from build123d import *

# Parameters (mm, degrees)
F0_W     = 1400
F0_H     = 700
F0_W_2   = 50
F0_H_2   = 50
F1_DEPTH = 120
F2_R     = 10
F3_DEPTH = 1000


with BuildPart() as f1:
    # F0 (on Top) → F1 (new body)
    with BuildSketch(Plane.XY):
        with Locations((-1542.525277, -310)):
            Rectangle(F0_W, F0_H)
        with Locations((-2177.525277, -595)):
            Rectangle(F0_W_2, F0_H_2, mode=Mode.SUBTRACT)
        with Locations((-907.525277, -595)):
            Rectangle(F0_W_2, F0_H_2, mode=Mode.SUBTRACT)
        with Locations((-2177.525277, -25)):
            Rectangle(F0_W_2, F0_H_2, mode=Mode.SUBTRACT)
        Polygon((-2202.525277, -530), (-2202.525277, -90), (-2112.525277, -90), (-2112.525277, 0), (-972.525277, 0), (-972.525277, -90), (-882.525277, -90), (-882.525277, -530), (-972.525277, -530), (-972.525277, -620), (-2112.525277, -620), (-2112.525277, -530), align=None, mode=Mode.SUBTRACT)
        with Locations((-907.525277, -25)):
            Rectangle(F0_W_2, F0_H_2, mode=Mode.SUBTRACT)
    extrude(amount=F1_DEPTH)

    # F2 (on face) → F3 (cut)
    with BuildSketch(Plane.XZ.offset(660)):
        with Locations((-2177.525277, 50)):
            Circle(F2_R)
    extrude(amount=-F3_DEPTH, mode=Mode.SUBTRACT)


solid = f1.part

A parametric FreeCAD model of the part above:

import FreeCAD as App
import Part
import Sketcher
from FreeCAD import Vector
Q = App.Units.Quantity

doc = App.newDocument("Part")
body = doc.addObject("PartDesign::Body", "Body")

# Sketch on XY plane
sketch1 = doc.addObject("Sketcher::SketchObject", "Sketch")
body.addObject(sketch1)
sketch1.AttachmentSupport = (doc.XY_Plane, [""])
sketch1.MapMode = "FlatFace"
sketch1.addGeometry(Part.LineSegment(Vector(-2243, 40, 0), Vector(-2243, -660, 0)), False)
sketch1.addGeometry(Part.LineSegment(Vector(-2243, -660, 0), Vector(-843, -660, 0)), False)
sketch1.addGeometry(Part.LineSegment(Vector(-843, -660, 0), Vector(-843, 40, 0)), False)
sketch1.addGeometry(Part.LineSegment(Vector(-843, 40, 0), Vector(-2243, 40, 0)), False)
sketch1.addGeometry(Part.LineSegment(Vector(-2153, -620, 0), Vector(-2203, -620, 0)), False)
sketch1.addGeometry(Part.LineSegment(Vector(-2203, -620, 0), Vector(-2203, -570, 0)), False)
sketch1.addGeometry(Part.LineSegment(Vector(-2203, -570, 0), Vector(-2153, -570, 0)), False)
sketch1.addGeometry(Part.LineSegment(Vector(-2153, -570, 0), Vector(-2153, -620, 0)), False)
sketch1.addGeometry(Part.LineSegment(Vector(-883, -620, 0), Vector(-933, -620, 0)), False)
sketch1.addGeometry(Part.LineSegment(Vector(-933, -620, 0), Vector(-933, -570, 0)), False)
sketch1.addGeometry(Part.LineSegment(Vector(-933, -570, 0), Vector(-883, -570, 0)), False)
sketch1.addGeometry(Part.LineSegment(Vector(-883, -570, 0), Vector(-883, -620, 0)), False)
sketch1.addGeometry(Part.LineSegment(Vector(-2153, -50, 0), Vector(-2203, -50, 0)), False)
sketch1.addGeometry(Part.LineSegment(Vector(-2203, -50, 0), Vector(-2203, 0, 0)), False)
sketch1.addGeometry(Part.LineSegment(Vector(-2203, 0, 0), Vector(-2153, 0, 0)), False)
sketch1.addGeometry(Part.LineSegment(Vector(-2153, 0, 0), Vector(-2153, -50, 0)), False)
sketch1.addGeometry(Part.LineSegment(Vector(-2113, -530, 0), Vector(-2203, -530, 0)), False)
sketch1.addGeometry(Part.LineSegment(Vector(-2203, -530, 0), Vector(-2203, -90, 0)), False)
sketch1.addGeometry(Part.LineSegment(Vector(-2203, -90, 0), Vector(-2113, -90, 0)), False)
sketch1.addGeometry(Part.LineSegment(Vector(-2113, -90, 0), Vector(-2113, 0, 0)), False)
sketch1.addGeometry(Part.LineSegment(Vector(-2113, 0, 0), Vector(-973, 0, 0)), False)
sketch1.addGeometry(Part.LineSegment(Vector(-973, 0, 0), Vector(-973, -90, 0)), False)
sketch1.addGeometry(Part.LineSegment(Vector(-973, -90, 0), Vector(-883, -90, 0)), False)
sketch1.addGeometry(Part.LineSegment(Vector(-883, -90, 0), Vector(-883, -530, 0)), False)
sketch1.addGeometry(Part.LineSegment(Vector(-883, -530, 0), Vector(-973, -530, 0)), False)
sketch1.addGeometry(Part.LineSegment(Vector(-973, -530, 0), Vector(-973, -620, 0)), False)
sketch1.addGeometry(Part.LineSegment(Vector(-973, -620, 0), Vector(-2113, -620, 0)), False)
sketch1.addGeometry(Part.LineSegment(Vector(-2113, -620, 0), Vector(-2113, -530, 0)), False)
sketch1.addGeometry(Part.LineSegment(Vector(-883, -50, 0), Vector(-933, -50, 0)), False)
sketch1.addGeometry(Part.LineSegment(Vector(-933, -50, 0), Vector(-933, 0, 0)), False)
sketch1.addGeometry(Part.LineSegment(Vector(-933, 0, 0), Vector(-883, 0, 0)), False)
sketch1.addGeometry(Part.LineSegment(Vector(-883, 0, 0), Vector(-883, -50, 0)), False)
sketch1.addConstraint(Sketcher.Constraint("Coincident", 0, 2, 1, 1))
sketch1.addConstraint(Sketcher.Constraint("Coincident", 1, 2, 2, 1))
sketch1.addConstraint(Sketcher.Constraint("Coincident", 2, 2, 3, 1))
sketch1.addConstraint(Sketcher.Constraint("Coincident", 3, 2, 0, 1))
sketch1.addConstraint(Sketcher.Constraint("Coincident", 4, 2, 5, 1))
sketch1.addConstraint(Sketcher.Constraint("Coincident", 5, 2, 6, 1))
sketch1.addConstraint(Sketcher.Constraint("Coincident", 6, 2, 7, 1))
sketch1.addConstraint(Sketcher.Constraint("Coincident", 7, 2, 4, 1))
sketch1.addConstraint(Sketcher.Constraint("Coincident", 8, 2, 9, 1))
sketch1.addConstraint(Sketcher.Constraint("Coincident", 9, 2, 10, 1))
sketch1.addConstraint(Sketcher.Constraint("Coincident", 10, 2, 11, 1))
sketch1.addConstraint(Sketcher.Constraint("Coincident", 11, 2, 8, 1))
sketch1.addConstraint(Sketcher.Constraint("Coincident", 12, 2, 13, 1))
sketch1.addConstraint(Sketcher.Constraint("Coincident", 13, 2, 14, 1))
sketch1.addConstraint(Sketcher.Constraint("Coincident", 14, 2, 15, 1))
sketch1.addConstraint(Sketcher.Constraint("Coincident", 15, 2, 12, 1))
sketch1.addConstraint(Sketcher.Constraint("Coincident", 16, 2, 17, 1))
sketch1.addConstraint(Sketcher.Constraint("Coincident", 17, 2, 18, 1))
sketch1.addConstraint(Sketcher.Constraint("Coincident", 18, 2, 19, 1))
sketch1.addConstraint(Sketcher.Constraint("Coincident", 19, 2, 20, 1))
sketch1.addConstraint(Sketcher.Constraint("Coincident", 20, 2, 21, 1))
sketch1.addConstraint(Sketcher.Constraint("Coincident", 21, 2, 22, 1))
sketch1.addConstraint(Sketcher.Constraint("Coincident", 22, 2, 23, 1))
sketch1.addConstraint(Sketcher.Constraint("Coincident", 23, 2, 24, 1))
sketch1.addConstraint(Sketcher.Constraint("Coincident", 24, 2, 25, 1))
sketch1.addConstraint(Sketcher.Constraint("Coincident", 25, 2, 26, 1))
sketch1.addConstraint(Sketcher.Constraint("Coincident", 26, 2, 27, 1))
sketch1.addConstraint(Sketcher.Constraint("Coincident", 27, 2, 16, 1))
sketch1.addConstraint(Sketcher.Constraint("Coincident", 28, 2, 29, 1))
sketch1.addConstraint(Sketcher.Constraint("Coincident", 29, 2, 30, 1))
sketch1.addConstraint(Sketcher.Constraint("Coincident", 30, 2, 31, 1))
sketch1.addConstraint(Sketcher.Constraint("Coincident", 31, 2, 28, 1))
sketch1.addConstraint(Sketcher.Constraint("Vertical", 0))
sketch1.addConstraint(Sketcher.Constraint("Horizontal", 1))
sketch1.addConstraint(Sketcher.Constraint("Vertical", 2))
sketch1.addConstraint(Sketcher.Constraint("Horizontal", 3))
sketch1.addConstraint(Sketcher.Constraint("Horizontal", 4))
sketch1.addConstraint(Sketcher.Constraint("Vertical", 5))
sketch1.addConstraint(Sketcher.Constraint("Horizontal", 6))
sketch1.addConstraint(Sketcher.Constraint("Vertical", 7))
sketch1.addConstraint(Sketcher.Constraint("Horizontal", 8))
sketch1.addConstraint(Sketcher.Constraint("Vertical", 9))
sketch1.addConstraint(Sketcher.Constraint("Horizontal", 10))
sketch1.addConstraint(Sketcher.Constraint("Vertical", 11))
sketch1.addConstraint(Sketcher.Constraint("Horizontal", 12))
sketch1.addConstraint(Sketcher.Constraint("Vertical", 13))
sketch1.addConstraint(Sketcher.Constraint("Horizontal", 14))
sketch1.addConstraint(Sketcher.Constraint("Vertical", 15))
sketch1.addConstraint(Sketcher.Constraint("Horizontal", 16))
sketch1.addConstraint(Sketcher.Constraint("Vertical", 17))
sketch1.addConstraint(Sketcher.Constraint("Horizontal", 18))
sketch1.addConstraint(Sketcher.Constraint("Vertical", 19))
sketch1.addConstraint(Sketcher.Constraint("Horizontal", 20))
sketch1.addConstraint(Sketcher.Constraint("Vertical", 21))
sketch1.addConstraint(Sketcher.Constraint("Horizontal", 22))
sketch1.addConstraint(Sketcher.Constraint("Vertical", 23))
sketch1.addConstraint(Sketcher.Constraint("Horizontal", 24))
sketch1.addConstraint(Sketcher.Constraint("Vertical", 25))
sketch1.addConstraint(Sketcher.Constraint("Horizontal", 26))
sketch1.addConstraint(Sketcher.Constraint("Vertical", 27))
sketch1.addConstraint(Sketcher.Constraint("Horizontal", 28))
sketch1.addConstraint(Sketcher.Constraint("Vertical", 29))
sketch1.addConstraint(Sketcher.Constraint("Horizontal", 30))
sketch1.addConstraint(Sketcher.Constraint("Vertical", 31))
sketch1.addConstraint(Sketcher.Constraint("PointOnObject", 13, 2, -1))
sketch1.addConstraint(Sketcher.Constraint("PointOnObject", 19, 2, -1))
sketch1.addConstraint(Sketcher.Constraint("PointOnObject", 29, 2, -1))
sketch1.addConstraint(Sketcher.Constraint("Horizontal", 7, 2, 8, 2))
sketch1.addConstraint(Sketcher.Constraint("Horizontal", 6, 2, 9, 2))
sketch1.addConstraint(Sketcher.Constraint("Horizontal", 18, 2, 21, 2))
sketch1.addConstraint(Sketcher.Constraint("Horizontal", 16, 2, 23, 2))
sketch1.addConstraint(Sketcher.Constraint("Horizontal", 11, 2, 25, 2))
sketch1.addConstraint(Sketcher.Constraint("Horizontal", 15, 2, 28, 2))
sketch1.addConstraint(Sketcher.Constraint("Vertical", 5, 2, 12, 2))
sketch1.addConstraint(Sketcher.Constraint("Vertical", 7, 2, 14, 2))
sketch1.addConstraint(Sketcher.Constraint("Vertical", 13, 2, 16, 2))
sketch1.addConstraint(Sketcher.Constraint("Vertical", 11, 2, 22, 2))
sketch1.addConstraint(Sketcher.Constraint("Vertical", 21, 2, 24, 2))
sketch1.addConstraint(Sketcher.Constraint("Vertical", 19, 2, 26, 2))
sketch1.addConstraint(Sketcher.Constraint("Vertical", 9, 2, 28, 2))
sketch1.addConstraint(Sketcher.Constraint("Vertical", 23, 2, 30, 2))
sketch1.addConstraint(Sketcher.Constraint("Equal", 6, 8))
sketch1.addConstraint(Sketcher.Constraint("Equal", 18, 22))
sketch1.addConstraint(Sketcher.Constraint("Equal", 30, 5))
sketch1.addConstraint(Sketcher.Constraint("Equal", 11, 13))
sketch1.addConstraint(Sketcher.Constraint("Equal", 24, 19))
sketch1.addConstraint(Sketcher.Constraint("Equal", 21, 25))
sketch1.addConstraint(Sketcher.Constraint("DistanceX", 1, 1, 1, 2, Q("1400 mm")))
sketch1.addConstraint(Sketcher.Constraint("DistanceX", 4, 2, 4, 1, Q("50 mm")))
sketch1.addConstraint(Sketcher.Constraint("DistanceX", 16, 2, 16, 1, Q("90 mm")))
sketch1.addConstraint(Sketcher.Constraint("DistanceX", 20, 1, 20, 2, Q("1140 mm")))
sketch1.addConstraint(Sketcher.Constraint("DistanceY", 0, 2, 0, 1, Q("700 mm")))
sketch1.addConstraint(Sketcher.Constraint("DistanceY", 17, 1, 17, 2, Q("440 mm")))
sketch1.addConstraint(Sketcher.Constraint("DistanceY", 0, 2, -1, 1, Q("660 mm")))
sketch1.addConstraint(Sketcher.Constraint("DistanceX", 0, 2, 4, 2, Q("40 mm")))
sketch1.addConstraint(Sketcher.Constraint("DistanceX", 0, 2, -1, 1, Q("2242.525277 mm")))
pad1 = doc.addObject("PartDesign::Pad", "Pad")
body.addObject(pad1)
pad1.Profile = sketch1
pad1.Length = 120

# Sketch on XZ plane
sketch2 = doc.addObject("Sketcher::SketchObject", "Sketch001")
body.addObject(sketch2)
sketch2.AttachmentSupport = (doc.XZ_Plane, [""])
sketch2.MapMode = "FlatFace"
sketch2.AttachmentOffset = App.Placement(Vector(0, 0, 660), App.Rotation())
sketch2.addGeometry(Part.Circle(Vector(-2178, 50, 0), Vector(0, 0, 1), 10), False)
sketch2.addConstraint(Sketcher.Constraint("Diameter", 0, Q("20 mm")))
sketch2.addConstraint(Sketcher.Constraint("DistanceY", -1, 1, 0, 3, Q("50 mm")))
sketch2.addConstraint(Sketcher.Constraint("DistanceX", 0, 3, -1, 1, Q("2177.525277 mm")))
pocket1 = doc.addObject("PartDesign::Pocket", "Pocket")
body.addObject(pocket1)
pocket1.Profile = sketch2
pocket1.Length = 1000

doc.recompute()
